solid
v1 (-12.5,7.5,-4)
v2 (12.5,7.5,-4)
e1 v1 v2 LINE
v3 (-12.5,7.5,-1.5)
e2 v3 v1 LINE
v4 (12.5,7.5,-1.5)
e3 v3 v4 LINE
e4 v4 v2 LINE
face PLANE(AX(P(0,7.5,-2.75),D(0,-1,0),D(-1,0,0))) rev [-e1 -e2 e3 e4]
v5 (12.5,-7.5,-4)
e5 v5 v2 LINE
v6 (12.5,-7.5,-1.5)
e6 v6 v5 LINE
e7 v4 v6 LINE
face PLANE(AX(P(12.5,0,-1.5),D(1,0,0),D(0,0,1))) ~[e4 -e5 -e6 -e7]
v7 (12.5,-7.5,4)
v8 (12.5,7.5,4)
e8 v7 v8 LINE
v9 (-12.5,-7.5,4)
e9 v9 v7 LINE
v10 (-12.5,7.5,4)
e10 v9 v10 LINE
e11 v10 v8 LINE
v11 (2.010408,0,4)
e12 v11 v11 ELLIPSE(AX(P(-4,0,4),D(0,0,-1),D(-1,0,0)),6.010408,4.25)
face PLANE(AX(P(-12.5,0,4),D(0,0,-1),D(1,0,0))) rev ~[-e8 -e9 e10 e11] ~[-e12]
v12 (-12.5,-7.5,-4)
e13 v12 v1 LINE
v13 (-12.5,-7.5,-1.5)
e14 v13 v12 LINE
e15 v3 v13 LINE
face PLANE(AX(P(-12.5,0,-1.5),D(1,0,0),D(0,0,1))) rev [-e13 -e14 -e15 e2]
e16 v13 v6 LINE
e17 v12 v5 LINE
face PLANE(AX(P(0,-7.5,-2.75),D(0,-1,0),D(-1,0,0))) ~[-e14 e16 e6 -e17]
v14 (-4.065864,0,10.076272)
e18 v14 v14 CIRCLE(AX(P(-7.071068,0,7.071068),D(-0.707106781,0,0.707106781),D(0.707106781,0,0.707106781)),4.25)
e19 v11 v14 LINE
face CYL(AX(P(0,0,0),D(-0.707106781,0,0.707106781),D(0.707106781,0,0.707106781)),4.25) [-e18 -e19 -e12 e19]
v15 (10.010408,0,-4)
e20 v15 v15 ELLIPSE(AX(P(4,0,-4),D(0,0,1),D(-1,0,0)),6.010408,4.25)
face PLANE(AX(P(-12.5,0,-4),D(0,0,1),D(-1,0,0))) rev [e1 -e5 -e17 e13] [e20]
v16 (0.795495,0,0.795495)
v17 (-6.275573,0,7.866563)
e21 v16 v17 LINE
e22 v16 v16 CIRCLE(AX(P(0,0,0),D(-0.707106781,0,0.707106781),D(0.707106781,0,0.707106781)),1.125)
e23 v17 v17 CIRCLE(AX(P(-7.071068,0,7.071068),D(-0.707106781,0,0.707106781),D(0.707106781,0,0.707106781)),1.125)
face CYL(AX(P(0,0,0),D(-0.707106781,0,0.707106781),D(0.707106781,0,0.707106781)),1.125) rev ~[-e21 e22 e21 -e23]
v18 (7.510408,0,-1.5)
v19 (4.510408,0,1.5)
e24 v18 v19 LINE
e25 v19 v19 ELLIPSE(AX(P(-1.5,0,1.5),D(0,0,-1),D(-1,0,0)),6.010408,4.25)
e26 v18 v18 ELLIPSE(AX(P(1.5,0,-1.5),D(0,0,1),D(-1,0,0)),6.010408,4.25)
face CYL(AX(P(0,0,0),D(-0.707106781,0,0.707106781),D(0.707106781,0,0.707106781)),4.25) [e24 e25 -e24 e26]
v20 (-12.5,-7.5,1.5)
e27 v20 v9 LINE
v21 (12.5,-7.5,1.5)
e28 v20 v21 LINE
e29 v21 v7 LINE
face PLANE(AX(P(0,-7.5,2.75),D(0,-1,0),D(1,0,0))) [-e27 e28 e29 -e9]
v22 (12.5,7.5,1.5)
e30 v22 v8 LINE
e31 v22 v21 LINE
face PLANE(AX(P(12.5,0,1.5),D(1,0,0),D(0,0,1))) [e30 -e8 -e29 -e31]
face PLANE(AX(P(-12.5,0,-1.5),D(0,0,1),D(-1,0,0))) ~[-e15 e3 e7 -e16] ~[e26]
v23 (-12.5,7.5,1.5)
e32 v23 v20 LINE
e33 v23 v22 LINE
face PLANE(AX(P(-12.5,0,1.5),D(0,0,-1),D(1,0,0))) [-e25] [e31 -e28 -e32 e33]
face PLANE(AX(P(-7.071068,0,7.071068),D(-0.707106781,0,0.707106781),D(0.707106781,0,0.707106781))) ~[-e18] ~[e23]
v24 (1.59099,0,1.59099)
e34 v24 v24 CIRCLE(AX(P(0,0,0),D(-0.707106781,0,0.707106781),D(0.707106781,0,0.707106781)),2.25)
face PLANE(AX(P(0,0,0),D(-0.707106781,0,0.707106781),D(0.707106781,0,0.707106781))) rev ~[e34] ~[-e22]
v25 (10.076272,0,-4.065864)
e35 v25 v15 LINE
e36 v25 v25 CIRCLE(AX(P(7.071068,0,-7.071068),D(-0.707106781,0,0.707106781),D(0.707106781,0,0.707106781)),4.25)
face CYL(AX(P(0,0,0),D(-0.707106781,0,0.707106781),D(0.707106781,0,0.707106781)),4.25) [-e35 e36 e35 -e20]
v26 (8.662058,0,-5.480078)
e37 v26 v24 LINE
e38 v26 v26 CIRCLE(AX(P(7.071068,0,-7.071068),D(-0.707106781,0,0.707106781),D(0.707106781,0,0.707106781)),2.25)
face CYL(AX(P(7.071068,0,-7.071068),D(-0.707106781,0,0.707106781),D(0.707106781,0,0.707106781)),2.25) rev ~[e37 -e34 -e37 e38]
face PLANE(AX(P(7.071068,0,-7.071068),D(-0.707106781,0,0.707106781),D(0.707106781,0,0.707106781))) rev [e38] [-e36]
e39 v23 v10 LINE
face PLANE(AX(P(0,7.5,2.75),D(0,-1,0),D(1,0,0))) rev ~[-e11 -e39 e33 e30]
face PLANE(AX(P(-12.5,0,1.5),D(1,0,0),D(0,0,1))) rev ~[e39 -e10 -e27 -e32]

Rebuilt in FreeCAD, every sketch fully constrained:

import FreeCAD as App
import Part
import Sketcher
Q = App.Units.Quantity


def add_polygon(sketch, points):
    """Adds a closed chain of lines whose ends are joined by coincident constraints."""
    first, n = sketch.GeometryCount, len(points)
    for a, b in zip(points, points[1:] + points[:1]):
        sketch.addGeometry(Part.LineSegment(App.Vector(*a, 0), App.Vector(*b, 0)), False)
    for i in range(n):
        sketch.addConstraint(Sketcher.Constraint("Coincident", first + i, 2, first + (i + 1) % n, 1))

doc = App.newDocument("Part")
params = doc.addObject("Spreadsheet::Sheet", "Params")
for row, (alias, value) in enumerate([
    ("sketch1_length", "20 mm"),
    ("sketch1_length2", "4.25 mm"),
    ("revolution_angle", "360 deg"),
    ("sketch2_width", "25 mm"),
    ("sketch2_height", "2.5 mm"),
    ("pad1_length", "15 mm"),
    ("sketch3_length", "10 mm"),
    ("sketch3_length2", "2.25 mm"),
    ("groove_angle", "360 deg"),
], start=1):
    params.set(f"A{row}", alias)
    params.set(f"B{row}", "=" + value)
    params.setAlias(f"B{row}", alias)

body = doc.addObject("PartDesign::Body", "Body")

# Sketch on XZ plane
sketch1 = body.newObject("Sketcher::SketchObject", "Sketch")
sketch1.AttachmentSupport = (doc.getObject("XZ_Plane"), [""])
sketch1.MapMode = "FlatFace"
add_polygon(sketch1, [(-7.1, 7.1), (7.1, -7.1), (10.1, -4.1), (-4.1, 10.1)])  # lines 0-3
sketch1.addGeometry(Part.LineSegment(App.Vector(7.1, -7.1, 0), App.Vector(-7.1, 7.1, 0)), True)  # axis
sketch1.addConstraint(Sketcher.Constraint("Coincident", 4, 1, 0, 2))
sketch1.addConstraint(Sketcher.Constraint("Coincident", 4, 2, 3, 2))
sketch1.addConstraint(Sketcher.Constraint("Symmetric", 0, 2, 3, 2, -1, 1))
sketch1.addConstraint(Sketcher.Constraint("Perpendicular", 0, 1))
sketch1.addConstraint(Sketcher.Constraint("Perpendicular", 1, 2))
sketch1.addConstraint(Sketcher.Constraint("Perpendicular", 2, 3))
sketch1.addConstraint(Sketcher.Constraint("Angle", 0, Q("-45 deg")))
sketch1.addConstraint(Sketcher.Constraint("Distance", 0, Q("20 mm")))
sketch1.addConstraint(Sketcher.Constraint("Distance", 1, Q("4.25 mm")))
sketch1.setExpression("Constraints[11]", "Params.sketch1_length")
sketch1.setExpression("Constraints[12]", "Params.sketch1_length2")
revolution = body.newObject("PartDesign::Revolution", "Revolution")
revolution.Profile = sketch1
revolution.ReferenceAxis = (sketch1, ["Axis0"])
revolution.setExpression("Angle", "Params.revolution_angle")

# Sketch on XZ plane
sketch2 = body.newObject("Sketcher::SketchObject", "Sketch001")
sketch2.AttachmentSupport = (doc.getObject("XZ_Plane"), [""])
sketch2.MapMode = "FlatFace"
add_polygon(sketch2, [(-12.5, 4), (-12.5, 1.5), (12.5, 1.5), (12.5, 4)])  # lines 0-3
sketch2.addConstraint(Sketcher.Constraint("Vertical", 0))
sketch2.addConstraint(Sketcher.Constraint("Horizontal", 1))
sketch2.addConstraint(Sketcher.Constraint("Vertical", 2))
sketch2.addConstraint(Sketcher.Constraint("Horizontal", 3))
sketch2.addConstraint(Sketcher.Constraint("DistanceX", 1, 1, 1, 2, Q("25 mm")))
sketch2.addConstraint(Sketcher.Constraint("DistanceY", 0, 2, 0, 1, Q("2.5 mm")))
sketch2.addConstraint(Sketcher.Constraint("DistanceY", -1, 1, 2, 2, Q("4 mm")))
sketch2.addConstraint(Sketcher.Constraint("DistanceX", 0, 2, -1, 1, Q("12.5 mm")))
sketch2.setExpression("Constraints[8]", "Params.sketch2_width")
sketch2.setExpression("Constraints[9]", "Params.sketch2_height")
pad1 = body.newObject("PartDesign::Pad", "Pad")
pad1.Profile = sketch2
pad1.setExpression("Length", "Params.pad1_length")
pad1.Midplane = True
doc.recompute()

mirrored = body.newObject("PartDesign::Mirrored", "Mirrored")
mirrored.Originals = [pad1]
mirrored.MirrorPlane = (doc.getObject("XY_Plane"), [""])
body.Tip = mirrored

# Sketch on XZ plane
sketch3 = body.newObject("Sketcher::SketchObject", "Sketch002")
sketch3.AttachmentSupport = (doc.getObject("XZ_Plane"), [""])
sketch3.MapMode = "FlatFace"
add_polygon(sketch3, [(7.1, -7.1), (8.7, -5.5), (1.6, 1.6), (0.8, 0.8), (-6.3, 7.9), (-7.1, 7.1)])  # lines 0-5
sketch3.addGeometry(Part.LineSegment(App.Vector(7.1, -7.1, 0), App.Vector(-7.1, 7.1, 0)), True)  # axis
sketch3.addConstraint(Sketcher.Constraint("Coincident", 6, 1, 5, 2))
sketch3.addConstraint(Sketcher.Constraint("Coincident", 6, 2, 4, 2))
sketch3.addConstraint(Sketcher.Constraint("Symmetric", 4, 2, 5, 2, -1, 1))
sketch3.addConstraint(Sketcher.Constraint("Perpendicular", 0, 1))
sketch3.addConstraint(Sketcher.Constraint("Perpendicular", 1, 2))
sketch3.addConstraint(Sketcher.Constraint("Perpendicular", 2, 3))
sketch3.addConstraint(Sketcher.Constraint("Perpendicular", 3, 4))
sketch3.addConstraint(Sketcher.Constraint("Perpendicular", 4, 5))
sketch3.addConstraint(Sketcher.Constraint("Equal", 1, 3))
sketch3.addConstraint(Sketcher.Constraint("Equal", 2, 4))
sketch3.addConstraint(Sketcher.Constraint("Angle", 0, Q("45 deg")))
sketch3.addConstraint(Sketcher.Constraint("Distance", 1, Q("10 mm")))
sketch3.addConstraint(Sketcher.Constraint("Distance", 0, Q("2.25 mm")))
sketch3.setExpression("Constraints[17]", "Params.sketch3_length")
sketch3.setExpression("Constraints[18]", "Params.sketch3_length2")
groove = body.newObject("PartDesign::Groove", "Groove")
groove.Profile = sketch3
groove.ReferenceAxis = (sketch3, ["Axis0"])
groove.setExpression("Angle", "Params.groove_angle")

doc.recompute()
